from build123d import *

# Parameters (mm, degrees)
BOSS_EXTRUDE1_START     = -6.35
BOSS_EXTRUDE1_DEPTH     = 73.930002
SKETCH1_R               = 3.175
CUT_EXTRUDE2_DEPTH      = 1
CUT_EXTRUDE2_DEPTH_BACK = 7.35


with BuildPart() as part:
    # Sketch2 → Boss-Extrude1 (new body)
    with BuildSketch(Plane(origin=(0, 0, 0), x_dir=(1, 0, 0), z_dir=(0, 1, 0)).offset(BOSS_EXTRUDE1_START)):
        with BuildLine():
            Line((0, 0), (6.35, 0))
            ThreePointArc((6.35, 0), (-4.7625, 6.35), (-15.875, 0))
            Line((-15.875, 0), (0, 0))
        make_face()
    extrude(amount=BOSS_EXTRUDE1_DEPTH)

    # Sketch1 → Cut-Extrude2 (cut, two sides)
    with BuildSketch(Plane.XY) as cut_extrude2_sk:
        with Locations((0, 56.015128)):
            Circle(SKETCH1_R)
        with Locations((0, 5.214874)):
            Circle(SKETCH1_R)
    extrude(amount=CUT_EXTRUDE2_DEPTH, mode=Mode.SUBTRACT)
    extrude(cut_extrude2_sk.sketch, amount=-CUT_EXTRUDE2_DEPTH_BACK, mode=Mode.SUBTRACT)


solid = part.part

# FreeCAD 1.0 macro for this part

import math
import FreeCAD as App
import Part
import Sketcher
from FreeCAD import Vector
Q = App.Units.Quantity

doc = App.newDocument("Part")
body = doc.addObject("PartDesign::Body", "Body")

# Sketch on XZ plane
sketch1 = doc.addObject("Sketcher::SketchObject", "Sketch")
body.addObject(sketch1)
sketch1.AttachmentSupport = (doc.XZ_Plane, [""])
sketch1.MapMode = "FlatFace"
sketch1.AttachmentOffset = App.Placement(Vector(0, 0, 0.25 * 25.4), App.Rotation())
sketch1.addGeometry(Part.ArcOfCircle(Part.Circle(Vector(-5, 7, 0), Vector(0, 0, 1), 13), math.radians(-149), math.radians(-31)), False)
sketch1.addGeometry(Part.LineSegment(Vector(-16, 0, 0), Vector(6, 0, 0)), False)
sketch1.addConstraint(Sketcher.Constraint("Coincident", 0, 1, 1, 1))
sketch1.addConstraint(Sketcher.Constraint("Coincident", 1, 2, 0, 2))
sketch1.addConstraint(Sketcher.Constraint("Horizontal", 1))
sketch1.addConstraint(Sketcher.Constraint("PointOnObject", 0, 1, -1))
sketch1.addConstraint(Sketcher.Constraint("DistanceX", 1, 1, 1, 2, Q("0.875 in")))
sketch1.addConstraint(Sketcher.Constraint("DistanceX", -1, 1, 1, 2, Q("0.25 in")))
sketch1.addConstraint(Sketcher.Constraint("Radius", 0, Q("12.898438 mm")))
pad1 = doc.addObject("PartDesign::Pad", "Pad")
body.addObject(pad1)
pad1.Profile = sketch1
pad1.Length = 73.930002
pad1.Reversed = True

# Sketch on XY plane
sketch2 = doc.addObject("Sketcher::SketchObject", "Sketch001")
body.addObject(sketch2)
sketch2.AttachmentSupport = (doc.XY_Plane, [""])
sketch2.MapMode = "FlatFace"
sketch2.addGeometry(Part.Circle(Vector(0, 56, 0), Vector(0, 0, 1), 3.2), False)
sketch2.addGeometry(Part.Circle(Vector(0, 5.2, 0), Vector(0, 0, 1), 3.2), False)
sketch2.addConstraint(Sketcher.Constraint("Equal", 0, 1))
sketch2.addConstraint(Sketcher.Constraint("PointOnObject", 0, 3, -2))
sketch2.addConstraint(Sketcher.Constraint("PointOnObject", 1, 3, -2))
sketch2.addConstraint(Sketcher.Constraint("Diameter", 0, Q("0.25 in")))
sketch2.addConstraint(Sketcher.Constraint("DistanceY", -1, 1, 0, 3, Q("56.015128 mm")))
sketch2.addConstraint(Sketcher.Constraint("DistanceY", -1, 1, 1, 3, Q("5.214874 mm")))
pocket1 = doc.addObject("PartDesign::Pocket", "Pocket")
body.addObject(pocket1)
pocket1.Profile = sketch2
pocket1.Type = "ThroughAll"
pocket1.Midplane = True

doc.recompute()
